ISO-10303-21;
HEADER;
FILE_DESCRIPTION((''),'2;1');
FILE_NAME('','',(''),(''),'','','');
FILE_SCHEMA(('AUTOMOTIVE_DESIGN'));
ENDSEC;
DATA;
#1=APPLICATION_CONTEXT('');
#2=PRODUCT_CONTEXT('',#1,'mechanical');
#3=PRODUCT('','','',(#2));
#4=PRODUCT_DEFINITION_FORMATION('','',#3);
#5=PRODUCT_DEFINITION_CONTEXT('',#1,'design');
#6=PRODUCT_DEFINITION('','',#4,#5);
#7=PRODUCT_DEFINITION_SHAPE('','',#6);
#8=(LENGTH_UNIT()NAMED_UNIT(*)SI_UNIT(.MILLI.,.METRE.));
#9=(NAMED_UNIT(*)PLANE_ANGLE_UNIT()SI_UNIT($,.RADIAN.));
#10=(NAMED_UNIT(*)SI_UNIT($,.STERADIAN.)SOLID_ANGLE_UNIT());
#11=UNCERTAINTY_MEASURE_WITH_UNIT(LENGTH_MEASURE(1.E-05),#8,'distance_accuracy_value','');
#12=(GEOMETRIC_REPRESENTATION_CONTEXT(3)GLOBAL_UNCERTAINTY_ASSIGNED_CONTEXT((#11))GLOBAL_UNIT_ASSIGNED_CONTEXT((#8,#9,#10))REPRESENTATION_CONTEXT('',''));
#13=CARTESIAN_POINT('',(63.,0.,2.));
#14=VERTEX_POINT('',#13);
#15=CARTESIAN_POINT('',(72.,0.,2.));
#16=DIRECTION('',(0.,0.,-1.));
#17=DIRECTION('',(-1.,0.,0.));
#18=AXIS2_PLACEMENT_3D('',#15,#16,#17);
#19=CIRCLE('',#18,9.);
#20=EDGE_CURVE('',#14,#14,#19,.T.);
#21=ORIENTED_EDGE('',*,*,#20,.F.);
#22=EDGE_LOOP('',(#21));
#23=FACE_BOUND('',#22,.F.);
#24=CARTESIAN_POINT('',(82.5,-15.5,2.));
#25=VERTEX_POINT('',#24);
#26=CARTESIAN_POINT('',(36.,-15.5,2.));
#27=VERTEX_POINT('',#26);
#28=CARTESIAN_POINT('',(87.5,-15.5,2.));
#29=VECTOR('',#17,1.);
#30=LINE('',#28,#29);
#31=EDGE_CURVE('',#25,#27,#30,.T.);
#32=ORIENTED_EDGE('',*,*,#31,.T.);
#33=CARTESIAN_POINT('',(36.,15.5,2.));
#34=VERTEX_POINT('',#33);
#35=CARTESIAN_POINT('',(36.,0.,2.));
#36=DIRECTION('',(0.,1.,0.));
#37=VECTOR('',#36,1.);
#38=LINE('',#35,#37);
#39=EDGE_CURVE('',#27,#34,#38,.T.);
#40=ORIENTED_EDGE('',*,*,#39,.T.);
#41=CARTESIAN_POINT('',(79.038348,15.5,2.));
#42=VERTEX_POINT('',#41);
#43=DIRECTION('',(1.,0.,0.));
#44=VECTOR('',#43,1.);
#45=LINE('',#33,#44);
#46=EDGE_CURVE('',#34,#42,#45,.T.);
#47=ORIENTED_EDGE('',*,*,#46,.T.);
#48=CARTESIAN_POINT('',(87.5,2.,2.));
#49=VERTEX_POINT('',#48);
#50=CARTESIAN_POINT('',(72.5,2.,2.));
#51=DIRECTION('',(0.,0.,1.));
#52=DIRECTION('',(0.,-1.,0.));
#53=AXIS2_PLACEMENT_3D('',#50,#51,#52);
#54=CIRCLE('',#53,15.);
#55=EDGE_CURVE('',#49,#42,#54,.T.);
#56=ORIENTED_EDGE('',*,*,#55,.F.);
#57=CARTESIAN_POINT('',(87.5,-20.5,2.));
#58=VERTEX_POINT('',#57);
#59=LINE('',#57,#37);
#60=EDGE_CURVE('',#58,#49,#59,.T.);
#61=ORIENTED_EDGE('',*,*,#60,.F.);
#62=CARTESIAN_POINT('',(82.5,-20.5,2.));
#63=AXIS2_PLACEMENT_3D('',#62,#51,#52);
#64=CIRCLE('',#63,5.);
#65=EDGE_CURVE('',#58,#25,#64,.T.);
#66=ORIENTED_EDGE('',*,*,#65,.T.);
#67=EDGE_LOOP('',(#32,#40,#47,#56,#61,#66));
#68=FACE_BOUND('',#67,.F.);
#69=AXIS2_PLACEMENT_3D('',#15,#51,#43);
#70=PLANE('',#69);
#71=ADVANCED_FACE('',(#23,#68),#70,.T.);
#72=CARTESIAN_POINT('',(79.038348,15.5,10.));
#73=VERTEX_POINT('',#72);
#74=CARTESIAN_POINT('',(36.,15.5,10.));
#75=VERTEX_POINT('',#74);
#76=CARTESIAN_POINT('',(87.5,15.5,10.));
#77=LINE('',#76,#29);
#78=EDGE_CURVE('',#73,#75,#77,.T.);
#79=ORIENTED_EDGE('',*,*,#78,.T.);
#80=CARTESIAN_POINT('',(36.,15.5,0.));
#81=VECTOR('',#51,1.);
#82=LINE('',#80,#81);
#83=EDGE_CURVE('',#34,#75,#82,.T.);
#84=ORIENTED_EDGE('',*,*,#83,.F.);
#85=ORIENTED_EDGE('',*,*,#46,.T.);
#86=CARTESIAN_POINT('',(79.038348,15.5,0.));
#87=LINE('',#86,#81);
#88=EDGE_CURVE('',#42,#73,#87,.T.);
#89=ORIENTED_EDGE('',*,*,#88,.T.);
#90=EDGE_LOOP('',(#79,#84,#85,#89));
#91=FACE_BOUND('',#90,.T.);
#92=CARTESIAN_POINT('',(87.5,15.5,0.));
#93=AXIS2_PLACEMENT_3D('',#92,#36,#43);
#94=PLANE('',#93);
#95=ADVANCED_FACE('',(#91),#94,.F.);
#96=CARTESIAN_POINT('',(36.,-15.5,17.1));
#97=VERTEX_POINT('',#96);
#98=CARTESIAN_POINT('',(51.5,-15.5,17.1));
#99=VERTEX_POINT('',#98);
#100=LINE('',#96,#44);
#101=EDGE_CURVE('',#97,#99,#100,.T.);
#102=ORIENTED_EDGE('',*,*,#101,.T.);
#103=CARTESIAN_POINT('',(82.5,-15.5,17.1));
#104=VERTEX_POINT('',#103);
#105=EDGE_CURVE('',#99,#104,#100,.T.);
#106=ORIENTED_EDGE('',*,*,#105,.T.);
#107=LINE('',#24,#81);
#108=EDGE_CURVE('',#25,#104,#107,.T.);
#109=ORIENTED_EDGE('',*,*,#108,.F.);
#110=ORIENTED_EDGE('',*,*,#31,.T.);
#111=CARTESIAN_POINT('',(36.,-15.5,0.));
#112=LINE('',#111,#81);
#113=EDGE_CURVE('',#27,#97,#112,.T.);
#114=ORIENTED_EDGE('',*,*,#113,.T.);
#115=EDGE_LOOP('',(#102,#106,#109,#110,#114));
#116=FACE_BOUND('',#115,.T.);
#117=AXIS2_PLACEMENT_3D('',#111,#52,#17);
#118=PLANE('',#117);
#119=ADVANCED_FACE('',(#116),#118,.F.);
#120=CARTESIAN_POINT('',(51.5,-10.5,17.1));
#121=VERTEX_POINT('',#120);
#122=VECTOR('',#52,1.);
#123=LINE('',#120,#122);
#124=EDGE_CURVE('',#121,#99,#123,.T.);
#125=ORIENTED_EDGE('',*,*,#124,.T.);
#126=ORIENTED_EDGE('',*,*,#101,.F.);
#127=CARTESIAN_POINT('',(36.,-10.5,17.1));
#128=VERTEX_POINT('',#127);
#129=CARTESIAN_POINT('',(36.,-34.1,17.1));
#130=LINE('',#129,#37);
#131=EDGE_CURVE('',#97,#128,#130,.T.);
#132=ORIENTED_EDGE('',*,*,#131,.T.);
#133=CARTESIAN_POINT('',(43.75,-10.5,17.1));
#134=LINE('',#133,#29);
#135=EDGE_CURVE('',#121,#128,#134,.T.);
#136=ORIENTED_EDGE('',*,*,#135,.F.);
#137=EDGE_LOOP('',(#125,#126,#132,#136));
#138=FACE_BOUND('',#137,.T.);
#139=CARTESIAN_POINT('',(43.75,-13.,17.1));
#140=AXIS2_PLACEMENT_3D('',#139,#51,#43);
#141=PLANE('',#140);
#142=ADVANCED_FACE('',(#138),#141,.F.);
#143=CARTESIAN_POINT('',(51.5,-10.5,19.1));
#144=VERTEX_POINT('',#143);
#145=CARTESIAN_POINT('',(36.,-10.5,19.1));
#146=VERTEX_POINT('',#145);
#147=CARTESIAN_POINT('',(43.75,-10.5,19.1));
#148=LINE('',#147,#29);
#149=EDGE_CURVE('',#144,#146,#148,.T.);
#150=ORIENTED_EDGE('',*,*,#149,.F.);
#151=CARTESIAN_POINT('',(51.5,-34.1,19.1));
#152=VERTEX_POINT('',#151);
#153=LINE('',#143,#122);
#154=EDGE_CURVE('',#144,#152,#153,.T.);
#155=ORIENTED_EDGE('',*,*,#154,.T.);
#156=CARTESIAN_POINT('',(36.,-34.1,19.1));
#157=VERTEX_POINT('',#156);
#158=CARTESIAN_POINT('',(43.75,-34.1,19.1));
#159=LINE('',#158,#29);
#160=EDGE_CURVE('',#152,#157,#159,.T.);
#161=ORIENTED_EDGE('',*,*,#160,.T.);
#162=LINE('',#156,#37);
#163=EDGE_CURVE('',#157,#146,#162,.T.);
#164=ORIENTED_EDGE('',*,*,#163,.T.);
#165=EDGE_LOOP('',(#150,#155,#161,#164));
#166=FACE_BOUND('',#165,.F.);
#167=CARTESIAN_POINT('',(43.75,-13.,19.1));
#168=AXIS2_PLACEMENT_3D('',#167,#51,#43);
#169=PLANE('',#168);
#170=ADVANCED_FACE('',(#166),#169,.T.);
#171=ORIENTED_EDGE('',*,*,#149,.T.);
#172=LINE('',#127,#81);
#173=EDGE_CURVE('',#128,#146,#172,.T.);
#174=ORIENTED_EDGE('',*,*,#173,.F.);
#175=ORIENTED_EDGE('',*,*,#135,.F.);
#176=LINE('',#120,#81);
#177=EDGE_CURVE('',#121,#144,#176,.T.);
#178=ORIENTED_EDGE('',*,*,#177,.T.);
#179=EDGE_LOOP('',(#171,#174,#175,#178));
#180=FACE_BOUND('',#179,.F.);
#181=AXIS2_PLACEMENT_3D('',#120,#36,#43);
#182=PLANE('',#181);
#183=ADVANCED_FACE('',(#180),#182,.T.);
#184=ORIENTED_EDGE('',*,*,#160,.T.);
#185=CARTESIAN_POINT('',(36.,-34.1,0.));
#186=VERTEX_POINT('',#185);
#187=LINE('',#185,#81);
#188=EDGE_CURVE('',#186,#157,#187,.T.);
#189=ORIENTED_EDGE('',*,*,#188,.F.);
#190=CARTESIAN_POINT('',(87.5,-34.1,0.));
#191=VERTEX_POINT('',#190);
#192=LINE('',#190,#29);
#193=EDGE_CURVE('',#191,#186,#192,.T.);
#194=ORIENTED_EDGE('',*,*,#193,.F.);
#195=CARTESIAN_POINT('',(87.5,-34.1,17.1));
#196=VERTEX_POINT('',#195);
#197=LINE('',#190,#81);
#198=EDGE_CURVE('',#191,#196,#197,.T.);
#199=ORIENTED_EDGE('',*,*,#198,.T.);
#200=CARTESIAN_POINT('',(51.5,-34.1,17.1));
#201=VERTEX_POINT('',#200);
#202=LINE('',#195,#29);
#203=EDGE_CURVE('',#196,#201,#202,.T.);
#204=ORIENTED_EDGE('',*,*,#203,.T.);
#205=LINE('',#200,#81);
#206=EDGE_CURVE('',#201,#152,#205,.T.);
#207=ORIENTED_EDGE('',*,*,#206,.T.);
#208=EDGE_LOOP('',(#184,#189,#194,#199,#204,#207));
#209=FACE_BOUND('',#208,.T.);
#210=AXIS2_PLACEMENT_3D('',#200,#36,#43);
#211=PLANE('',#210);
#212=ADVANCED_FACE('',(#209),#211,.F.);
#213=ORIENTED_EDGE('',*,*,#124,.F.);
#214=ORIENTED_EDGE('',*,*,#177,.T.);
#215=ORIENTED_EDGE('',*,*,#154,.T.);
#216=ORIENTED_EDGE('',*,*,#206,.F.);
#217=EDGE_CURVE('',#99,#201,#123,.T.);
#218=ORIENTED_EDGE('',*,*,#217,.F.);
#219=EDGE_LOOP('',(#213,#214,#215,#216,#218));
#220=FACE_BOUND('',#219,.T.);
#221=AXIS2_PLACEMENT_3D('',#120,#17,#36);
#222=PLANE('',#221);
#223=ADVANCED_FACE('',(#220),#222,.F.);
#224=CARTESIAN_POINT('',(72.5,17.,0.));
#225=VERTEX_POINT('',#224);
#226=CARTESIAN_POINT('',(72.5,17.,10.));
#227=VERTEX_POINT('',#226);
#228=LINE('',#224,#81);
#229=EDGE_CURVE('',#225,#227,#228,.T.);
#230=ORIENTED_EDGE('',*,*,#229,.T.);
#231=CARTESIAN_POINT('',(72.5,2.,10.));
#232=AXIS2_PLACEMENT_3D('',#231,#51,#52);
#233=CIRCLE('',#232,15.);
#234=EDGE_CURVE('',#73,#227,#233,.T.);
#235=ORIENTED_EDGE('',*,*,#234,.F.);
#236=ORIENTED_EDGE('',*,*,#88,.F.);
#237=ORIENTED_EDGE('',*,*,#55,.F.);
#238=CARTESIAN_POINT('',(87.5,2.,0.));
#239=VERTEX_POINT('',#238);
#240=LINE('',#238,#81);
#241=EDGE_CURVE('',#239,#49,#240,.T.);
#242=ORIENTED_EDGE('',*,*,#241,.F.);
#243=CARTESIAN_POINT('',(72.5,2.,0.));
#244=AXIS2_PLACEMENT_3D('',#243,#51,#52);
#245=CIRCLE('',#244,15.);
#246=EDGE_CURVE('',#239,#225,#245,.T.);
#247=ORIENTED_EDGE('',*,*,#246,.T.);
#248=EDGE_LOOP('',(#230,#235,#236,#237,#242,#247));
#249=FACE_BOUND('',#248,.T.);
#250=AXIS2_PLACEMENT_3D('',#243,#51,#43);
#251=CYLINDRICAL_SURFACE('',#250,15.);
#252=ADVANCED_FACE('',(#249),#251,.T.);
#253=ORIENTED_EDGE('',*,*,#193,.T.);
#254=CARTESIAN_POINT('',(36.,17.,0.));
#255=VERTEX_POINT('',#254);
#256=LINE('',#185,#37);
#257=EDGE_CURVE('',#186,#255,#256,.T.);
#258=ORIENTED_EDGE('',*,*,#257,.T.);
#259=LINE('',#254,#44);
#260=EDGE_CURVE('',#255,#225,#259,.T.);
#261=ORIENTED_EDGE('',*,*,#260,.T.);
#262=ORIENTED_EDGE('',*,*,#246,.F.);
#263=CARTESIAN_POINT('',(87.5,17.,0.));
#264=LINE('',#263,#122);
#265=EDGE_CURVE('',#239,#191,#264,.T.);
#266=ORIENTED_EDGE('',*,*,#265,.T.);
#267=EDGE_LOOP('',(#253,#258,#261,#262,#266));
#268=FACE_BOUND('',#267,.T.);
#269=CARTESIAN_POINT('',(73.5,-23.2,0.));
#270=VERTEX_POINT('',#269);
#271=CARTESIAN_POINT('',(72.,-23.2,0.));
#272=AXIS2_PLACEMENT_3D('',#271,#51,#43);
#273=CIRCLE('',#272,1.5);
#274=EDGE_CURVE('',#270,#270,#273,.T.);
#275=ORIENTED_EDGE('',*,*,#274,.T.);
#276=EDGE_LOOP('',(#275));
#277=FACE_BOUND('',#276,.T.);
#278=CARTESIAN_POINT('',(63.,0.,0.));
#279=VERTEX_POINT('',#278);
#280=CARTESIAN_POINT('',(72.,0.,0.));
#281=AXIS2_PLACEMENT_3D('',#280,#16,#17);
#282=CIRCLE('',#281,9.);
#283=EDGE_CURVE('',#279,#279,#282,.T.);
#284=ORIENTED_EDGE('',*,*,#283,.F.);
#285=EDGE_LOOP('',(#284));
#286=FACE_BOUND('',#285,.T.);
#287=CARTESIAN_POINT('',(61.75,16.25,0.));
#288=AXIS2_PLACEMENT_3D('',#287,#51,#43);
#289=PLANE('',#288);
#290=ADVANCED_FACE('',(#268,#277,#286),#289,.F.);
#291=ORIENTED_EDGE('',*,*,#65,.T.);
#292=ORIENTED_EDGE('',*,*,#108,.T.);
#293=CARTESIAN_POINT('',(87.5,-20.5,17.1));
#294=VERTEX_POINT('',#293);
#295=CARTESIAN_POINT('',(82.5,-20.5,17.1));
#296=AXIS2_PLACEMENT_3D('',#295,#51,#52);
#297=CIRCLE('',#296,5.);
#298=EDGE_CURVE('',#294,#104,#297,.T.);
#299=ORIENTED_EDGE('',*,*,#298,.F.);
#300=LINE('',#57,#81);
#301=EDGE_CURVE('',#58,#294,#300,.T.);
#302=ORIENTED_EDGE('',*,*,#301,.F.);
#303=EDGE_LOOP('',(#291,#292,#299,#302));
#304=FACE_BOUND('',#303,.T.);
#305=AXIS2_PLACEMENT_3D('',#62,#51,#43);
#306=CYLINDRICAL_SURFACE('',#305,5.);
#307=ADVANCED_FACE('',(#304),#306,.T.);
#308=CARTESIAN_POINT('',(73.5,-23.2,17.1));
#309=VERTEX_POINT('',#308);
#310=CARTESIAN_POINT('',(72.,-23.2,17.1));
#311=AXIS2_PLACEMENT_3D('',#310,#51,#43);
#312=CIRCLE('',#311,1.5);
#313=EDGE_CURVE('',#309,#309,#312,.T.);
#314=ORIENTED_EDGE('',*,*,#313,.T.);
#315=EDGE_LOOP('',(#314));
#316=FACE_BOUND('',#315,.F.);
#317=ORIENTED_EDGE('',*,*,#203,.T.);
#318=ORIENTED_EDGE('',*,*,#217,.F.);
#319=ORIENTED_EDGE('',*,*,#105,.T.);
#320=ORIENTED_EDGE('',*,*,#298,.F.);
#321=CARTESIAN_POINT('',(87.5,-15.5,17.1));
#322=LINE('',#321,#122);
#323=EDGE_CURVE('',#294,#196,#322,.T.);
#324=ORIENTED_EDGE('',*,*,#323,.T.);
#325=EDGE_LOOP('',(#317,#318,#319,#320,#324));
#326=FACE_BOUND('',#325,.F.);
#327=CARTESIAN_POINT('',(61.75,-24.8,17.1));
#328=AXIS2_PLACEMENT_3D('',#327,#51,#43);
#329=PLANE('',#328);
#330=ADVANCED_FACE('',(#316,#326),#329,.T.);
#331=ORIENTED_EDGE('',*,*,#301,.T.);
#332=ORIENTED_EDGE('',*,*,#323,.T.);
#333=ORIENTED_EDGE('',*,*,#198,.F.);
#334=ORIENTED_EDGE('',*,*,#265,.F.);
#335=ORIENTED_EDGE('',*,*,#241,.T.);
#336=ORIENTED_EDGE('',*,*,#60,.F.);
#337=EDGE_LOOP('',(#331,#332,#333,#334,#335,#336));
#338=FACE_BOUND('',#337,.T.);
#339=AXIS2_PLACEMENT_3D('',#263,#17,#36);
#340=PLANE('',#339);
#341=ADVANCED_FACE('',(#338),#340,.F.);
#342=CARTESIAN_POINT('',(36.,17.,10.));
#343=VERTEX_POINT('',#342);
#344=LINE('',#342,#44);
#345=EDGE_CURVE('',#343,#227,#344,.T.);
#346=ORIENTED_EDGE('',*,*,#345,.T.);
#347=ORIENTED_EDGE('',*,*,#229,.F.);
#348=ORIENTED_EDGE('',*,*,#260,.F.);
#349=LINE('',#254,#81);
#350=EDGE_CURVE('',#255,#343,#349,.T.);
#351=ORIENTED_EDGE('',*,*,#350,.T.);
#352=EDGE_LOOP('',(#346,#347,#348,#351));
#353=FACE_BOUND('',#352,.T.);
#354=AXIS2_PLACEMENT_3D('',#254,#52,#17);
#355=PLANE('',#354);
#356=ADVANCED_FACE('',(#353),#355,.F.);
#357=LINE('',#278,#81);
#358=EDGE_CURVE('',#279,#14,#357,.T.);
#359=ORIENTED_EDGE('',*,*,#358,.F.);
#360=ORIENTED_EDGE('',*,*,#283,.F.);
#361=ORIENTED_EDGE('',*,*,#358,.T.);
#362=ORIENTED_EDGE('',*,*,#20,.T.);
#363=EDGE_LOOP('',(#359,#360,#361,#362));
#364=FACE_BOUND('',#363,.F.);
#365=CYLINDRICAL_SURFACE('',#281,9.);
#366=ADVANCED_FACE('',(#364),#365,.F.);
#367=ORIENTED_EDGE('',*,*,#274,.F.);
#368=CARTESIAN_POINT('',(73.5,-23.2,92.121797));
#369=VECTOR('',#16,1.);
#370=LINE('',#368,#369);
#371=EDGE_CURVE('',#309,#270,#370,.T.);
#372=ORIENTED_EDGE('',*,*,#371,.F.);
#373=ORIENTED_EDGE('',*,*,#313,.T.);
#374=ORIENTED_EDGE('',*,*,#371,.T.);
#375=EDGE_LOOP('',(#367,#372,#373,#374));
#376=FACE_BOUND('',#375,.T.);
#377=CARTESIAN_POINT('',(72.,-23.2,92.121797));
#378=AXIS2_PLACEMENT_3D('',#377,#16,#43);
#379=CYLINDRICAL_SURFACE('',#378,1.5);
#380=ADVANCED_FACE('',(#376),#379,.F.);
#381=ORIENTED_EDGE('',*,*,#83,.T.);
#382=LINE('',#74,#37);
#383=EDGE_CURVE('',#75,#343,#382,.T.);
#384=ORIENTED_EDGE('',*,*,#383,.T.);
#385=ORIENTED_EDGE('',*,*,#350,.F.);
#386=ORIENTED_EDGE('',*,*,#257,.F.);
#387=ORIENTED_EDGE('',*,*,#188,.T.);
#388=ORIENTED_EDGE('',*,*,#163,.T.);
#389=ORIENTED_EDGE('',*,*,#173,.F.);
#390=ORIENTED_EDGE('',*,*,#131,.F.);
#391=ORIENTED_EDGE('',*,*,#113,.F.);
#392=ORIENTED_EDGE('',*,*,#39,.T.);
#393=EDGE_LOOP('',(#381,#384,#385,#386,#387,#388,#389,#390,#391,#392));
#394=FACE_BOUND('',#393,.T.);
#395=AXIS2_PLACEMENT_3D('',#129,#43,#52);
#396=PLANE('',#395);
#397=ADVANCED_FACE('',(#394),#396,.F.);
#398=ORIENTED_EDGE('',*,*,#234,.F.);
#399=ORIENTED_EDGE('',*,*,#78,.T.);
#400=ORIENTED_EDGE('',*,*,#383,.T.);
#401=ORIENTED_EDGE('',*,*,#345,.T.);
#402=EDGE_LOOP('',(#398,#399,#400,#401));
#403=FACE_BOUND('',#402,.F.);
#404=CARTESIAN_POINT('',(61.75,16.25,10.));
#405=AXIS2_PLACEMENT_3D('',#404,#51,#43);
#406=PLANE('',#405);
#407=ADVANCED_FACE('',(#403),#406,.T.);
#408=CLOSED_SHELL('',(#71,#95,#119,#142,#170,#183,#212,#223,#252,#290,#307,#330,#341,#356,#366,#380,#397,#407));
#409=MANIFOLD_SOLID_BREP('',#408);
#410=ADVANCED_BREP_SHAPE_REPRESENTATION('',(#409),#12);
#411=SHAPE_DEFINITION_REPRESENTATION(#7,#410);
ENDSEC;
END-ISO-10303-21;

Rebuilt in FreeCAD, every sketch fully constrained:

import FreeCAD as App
import Part
import Sketcher
from FreeCAD import Vector


def edges_at(feature, points):
    """Names of the edges that pass closest to the given points."""
    edges = feature.Shape.Edges
    near = lambda p: min(range(len(edges)), key=lambda i: edges[i].distToShape(Part.Vertex(*p))[0])
    return sorted({f"Edge{near(p) + 1}" for p in points})

doc = App.newDocument("Part")
body = doc.addObject("PartDesign::Body", "Body")

# Sketch on XY plane
sketch1 = body.newObject("Sketcher::SketchObject", "Sketch")
sketch1.AttachmentSupport = (doc.getObject("XY_Plane"), [""])
sketch1.MapMode = "FlatFace"
sketch1.addGeometry([
    Part.LineSegment(Vector(36, -16, 0), Vector(-16, -16, 0)),
    Part.LineSegment(Vector(-16, -16, 0), Vector(-16, -34, 0)),
    Part.LineSegment(Vector(-16, -34, 0), Vector(36, -34, 0)),
    Part.LineSegment(Vector(36, -34, 0), Vector(36, -16, 0)),
], False)
sketch1.addConstraint([
    Sketcher.Constraint("Coincident", 0, 2, 1, 1),
    Sketcher.Constraint("Coincident", 1, 2, 2, 1),
    Sketcher.Constraint("Coincident", 2, 2, 3, 1),
    Sketcher.Constraint("Coincident", 3, 2, 0, 1),
    Sketcher.Constraint("Horizontal", 0),
    Sketcher.Constraint("Vertical", 1),
    Sketcher.Constraint("Horizontal", 2),
    Sketcher.Constraint("Vertical", 3),
    Sketcher.Constraint("DistanceX", 0, 2, 0, 1, 51.5),
    Sketcher.Constraint("DistanceY", 1, 2, 1, 1, 18.6),
    Sketcher.Constraint("DistanceX", -1, 1, 2, 2, 36.0),
    Sketcher.Constraint("DistanceY", 0, 2, -1, 1, 15.5),
])
pad1 = body.newObject("PartDesign::Pad", "Pad")
pad1.Profile = sketch1
pad1.Length = 17.1

# Sketch on XY plane
sketch2 = body.newObject("Sketcher::SketchObject", "Sketch001")
sketch2.AttachmentSupport = (doc.getObject("XY_Plane"), [""])
sketch2.MapMode = "FlatFace"
sketch2.addGeometry([
    Part.LineSegment(Vector(-16, 16, 0), Vector(-16, -16, 0)),  # 0
    Part.LineSegment(Vector(-16, -16, 0), Vector(36, -16, 0)),  # 1
    Part.LineSegment(Vector(36, -16, 0), Vector(36, 16, 0)),  # 2
    Part.LineSegment(Vector(36, 16, 0), Vector(-16, 16, 0)),  # 3
    Part.Circle(Vector(0, 0, 0), Vector(0, 0, 1), 9),  # 4
], False)
sketch2.addConstraint([
    Sketcher.Constraint("Coincident", 0, 2, 1, 1),
    Sketcher.Constraint("Coincident", 1, 2, 2, 1),
    Sketcher.Constraint("Coincident", 2, 2, 3, 1),
    Sketcher.Constraint("Coincident", 3, 2, 0, 1),
    Sketcher.Constraint("Vertical", 0),
    Sketcher.Constraint("Horizontal", 1),
    Sketcher.Constraint("Vertical", 2),
    Sketcher.Constraint("Horizontal", 3),
    Sketcher.Constraint("Coincident", 4, 3, -1, 1),
    Sketcher.Constraint("Diameter", 4, 18.0),
    Sketcher.Constraint("DistanceY", 0, 2, 0, 1, 31.0),
    Sketcher.Constraint("DistanceX", 1, 1, 1, 2, 51.5),
    Sketcher.Constraint("DistanceX", -1, 1, 1, 2, 36.0),
    Sketcher.Constraint("DistanceY", 0, 2, -1, 1, 15.5),
])
pad2 = body.newObject("PartDesign::Pad", "Pad001")
pad2.Profile = sketch2
pad2.Length = 2

# Sketch on XY plane
sketch3 = body.newObject("Sketcher::SketchObject", "Sketch002")
sketch3.AttachmentSupport = (doc.getObject("XY_Plane"), [""])
sketch3.MapMode = "FlatFace"
sketch3.addGeometry([
    Part.LineSegment(Vector(-15.5, 15.5, 0), Vector(36, 15.5, 0)),
    Part.LineSegment(Vector(36, 15.5, 0), Vector(36, 17, 0)),
    Part.LineSegment(Vector(36, 17, 0), Vector(-15.5, 17, 0)),
    Part.LineSegment(Vector(-15.5, 17, 0), Vector(-15.5, 15.5, 0)),
], False)
sketch3.addConstraint([
    Sketcher.Constraint("Coincident", 0, 2, 1, 1),
    Sketcher.Constraint("Coincident", 1, 2, 2, 1),
    Sketcher.Constraint("Coincident", 2, 2, 3, 1),
    Sketcher.Constraint("Coincident", 3, 2, 0, 1),
    Sketcher.Constraint("Horizontal", 0),
    Sketcher.Constraint("Vertical", 1),
    Sketcher.Constraint("Horizontal", 2),
    Sketcher.Constraint("Vertical", 3),
    Sketcher.Constraint("DistanceX", 0, 1, 0, 2, 51.5),
    Sketcher.Constraint("DistanceY", 1, 1, 1, 2, 1.5),
    Sketcher.Constraint("DistanceX", -1, 1, 0, 2, 36.0),
    Sketcher.Constraint("DistanceY", -1, 1, 1, 2, 17.0),
])
pad3 = body.newObject("PartDesign::Pad", "Pad002")
pad3.Profile = sketch3
pad3.Length = 10
doc.recompute()

fillet = body.newObject("PartDesign::Fillet", "Fillet")
fillet.Base = (pad3, edges_at(pad3, [(-15.5, 17, 5)]))
fillet.Radius = 15

# Sketch on XY plane
sketch4 = body.newObject("Sketcher::SketchObject", "Sketch003")
sketch4.AttachmentSupport = (doc.getObject("XY_Plane"), [""])
sketch4.MapMode = "FlatFace"
sketch4.AttachmentOffset = App.Placement(Vector(0, 0, 17.1), App.Rotation())
sketch4.addGeometry([
    Part.LineSegment(Vector(20, -10, 0), Vector(20, -34, 0)),
    Part.LineSegment(Vector(20, -34, 0), Vector(36, -34, 0)),
    Part.LineSegment(Vector(36, -34, 0), Vector(36, -10, 0)),
    Part.LineSegment(Vector(36, -10, 0), Vector(20, -10, 0)),
], False)
sketch4.addConstraint([
    Sketcher.Constraint("Coincident", 0, 2, 1, 1),
    Sketcher.Constraint("Coincident", 1, 2, 2, 1),
    Sketcher.Constraint("Coincident", 2, 2, 3, 1),
    Sketcher.Constraint("Coincident", 3, 2, 0, 1),
    Sketcher.Constraint("Vertical", 0),
    Sketcher.Constraint("Horizontal", 1),
    Sketcher.Constraint("Vertical", 2),
    Sketcher.Constraint("Horizontal", 3),
    Sketcher.Constraint("DistanceX", 1, 1, 1, 2, 15.5),
    Sketcher.Constraint("DistanceY", 0, 2, 0, 1, 23.6),
    Sketcher.Constraint("DistanceX", -1, 1, 1, 2, 36.0),
    Sketcher.Constraint("DistanceY", 0, 2, -1, 1, 34.1),
])
pad4 = body.newObject("PartDesign::Pad", "Pad003")
pad4.Profile = sketch4
pad4.Length = 2

# Sketch on XY plane
sketch5 = body.newObject("Sketcher::SketchObject", "Sketch004")
sketch5.AttachmentSupport = (doc.getObject("XY_Plane"), [""])
sketch5.MapMode = "FlatFace"
sketch5.AttachmentOffset = App.Placement(Vector(0, 0, 17.1), App.Rotation())
sketch5.addGeometry(Part.Circle(Vector(0, -23.2, 0), Vector(0, 0, 1), 1.5), False)
sketch5.addConstraint([
    Sketcher.Constraint("PointOnObject", 0, 3, -2),
    Sketcher.Constraint("Diameter", 0, 3.0),
    Sketcher.Constraint("DistanceY", 0, 3, -1, 1, 23.2),
])
doc.recompute()
hole = body.newObject("PartDesign::Hole", "Hole")
hole.Profile = sketch5
hole.ThreadType = "None"
hole.Diameter = 3
hole.DepthType = "ThroughAll"
doc.recompute()

fillet2 = body.newObject("PartDesign::Fillet", "Fillet001")
fillet2.Base = (hole, edges_at(hole, [(-15.5, -15.5, 9.55)]))
fillet2.Radius = 5
body2 = doc.addObject("PartDesign::Body", "Body001")
doc.recompute()

mirroring = doc.addObject("Part::Mirroring", "Mirroring")
mirroring.Source = body
mirroring.Base = Vector(36, -19.66422, 8.390388)
mirroring.Normal = Vector(1, 0, 0)
body2.BaseFeature = mirroring
doc.recompute()
body.Visibility = False
mirroring.Visibility = False

doc.recompute()
